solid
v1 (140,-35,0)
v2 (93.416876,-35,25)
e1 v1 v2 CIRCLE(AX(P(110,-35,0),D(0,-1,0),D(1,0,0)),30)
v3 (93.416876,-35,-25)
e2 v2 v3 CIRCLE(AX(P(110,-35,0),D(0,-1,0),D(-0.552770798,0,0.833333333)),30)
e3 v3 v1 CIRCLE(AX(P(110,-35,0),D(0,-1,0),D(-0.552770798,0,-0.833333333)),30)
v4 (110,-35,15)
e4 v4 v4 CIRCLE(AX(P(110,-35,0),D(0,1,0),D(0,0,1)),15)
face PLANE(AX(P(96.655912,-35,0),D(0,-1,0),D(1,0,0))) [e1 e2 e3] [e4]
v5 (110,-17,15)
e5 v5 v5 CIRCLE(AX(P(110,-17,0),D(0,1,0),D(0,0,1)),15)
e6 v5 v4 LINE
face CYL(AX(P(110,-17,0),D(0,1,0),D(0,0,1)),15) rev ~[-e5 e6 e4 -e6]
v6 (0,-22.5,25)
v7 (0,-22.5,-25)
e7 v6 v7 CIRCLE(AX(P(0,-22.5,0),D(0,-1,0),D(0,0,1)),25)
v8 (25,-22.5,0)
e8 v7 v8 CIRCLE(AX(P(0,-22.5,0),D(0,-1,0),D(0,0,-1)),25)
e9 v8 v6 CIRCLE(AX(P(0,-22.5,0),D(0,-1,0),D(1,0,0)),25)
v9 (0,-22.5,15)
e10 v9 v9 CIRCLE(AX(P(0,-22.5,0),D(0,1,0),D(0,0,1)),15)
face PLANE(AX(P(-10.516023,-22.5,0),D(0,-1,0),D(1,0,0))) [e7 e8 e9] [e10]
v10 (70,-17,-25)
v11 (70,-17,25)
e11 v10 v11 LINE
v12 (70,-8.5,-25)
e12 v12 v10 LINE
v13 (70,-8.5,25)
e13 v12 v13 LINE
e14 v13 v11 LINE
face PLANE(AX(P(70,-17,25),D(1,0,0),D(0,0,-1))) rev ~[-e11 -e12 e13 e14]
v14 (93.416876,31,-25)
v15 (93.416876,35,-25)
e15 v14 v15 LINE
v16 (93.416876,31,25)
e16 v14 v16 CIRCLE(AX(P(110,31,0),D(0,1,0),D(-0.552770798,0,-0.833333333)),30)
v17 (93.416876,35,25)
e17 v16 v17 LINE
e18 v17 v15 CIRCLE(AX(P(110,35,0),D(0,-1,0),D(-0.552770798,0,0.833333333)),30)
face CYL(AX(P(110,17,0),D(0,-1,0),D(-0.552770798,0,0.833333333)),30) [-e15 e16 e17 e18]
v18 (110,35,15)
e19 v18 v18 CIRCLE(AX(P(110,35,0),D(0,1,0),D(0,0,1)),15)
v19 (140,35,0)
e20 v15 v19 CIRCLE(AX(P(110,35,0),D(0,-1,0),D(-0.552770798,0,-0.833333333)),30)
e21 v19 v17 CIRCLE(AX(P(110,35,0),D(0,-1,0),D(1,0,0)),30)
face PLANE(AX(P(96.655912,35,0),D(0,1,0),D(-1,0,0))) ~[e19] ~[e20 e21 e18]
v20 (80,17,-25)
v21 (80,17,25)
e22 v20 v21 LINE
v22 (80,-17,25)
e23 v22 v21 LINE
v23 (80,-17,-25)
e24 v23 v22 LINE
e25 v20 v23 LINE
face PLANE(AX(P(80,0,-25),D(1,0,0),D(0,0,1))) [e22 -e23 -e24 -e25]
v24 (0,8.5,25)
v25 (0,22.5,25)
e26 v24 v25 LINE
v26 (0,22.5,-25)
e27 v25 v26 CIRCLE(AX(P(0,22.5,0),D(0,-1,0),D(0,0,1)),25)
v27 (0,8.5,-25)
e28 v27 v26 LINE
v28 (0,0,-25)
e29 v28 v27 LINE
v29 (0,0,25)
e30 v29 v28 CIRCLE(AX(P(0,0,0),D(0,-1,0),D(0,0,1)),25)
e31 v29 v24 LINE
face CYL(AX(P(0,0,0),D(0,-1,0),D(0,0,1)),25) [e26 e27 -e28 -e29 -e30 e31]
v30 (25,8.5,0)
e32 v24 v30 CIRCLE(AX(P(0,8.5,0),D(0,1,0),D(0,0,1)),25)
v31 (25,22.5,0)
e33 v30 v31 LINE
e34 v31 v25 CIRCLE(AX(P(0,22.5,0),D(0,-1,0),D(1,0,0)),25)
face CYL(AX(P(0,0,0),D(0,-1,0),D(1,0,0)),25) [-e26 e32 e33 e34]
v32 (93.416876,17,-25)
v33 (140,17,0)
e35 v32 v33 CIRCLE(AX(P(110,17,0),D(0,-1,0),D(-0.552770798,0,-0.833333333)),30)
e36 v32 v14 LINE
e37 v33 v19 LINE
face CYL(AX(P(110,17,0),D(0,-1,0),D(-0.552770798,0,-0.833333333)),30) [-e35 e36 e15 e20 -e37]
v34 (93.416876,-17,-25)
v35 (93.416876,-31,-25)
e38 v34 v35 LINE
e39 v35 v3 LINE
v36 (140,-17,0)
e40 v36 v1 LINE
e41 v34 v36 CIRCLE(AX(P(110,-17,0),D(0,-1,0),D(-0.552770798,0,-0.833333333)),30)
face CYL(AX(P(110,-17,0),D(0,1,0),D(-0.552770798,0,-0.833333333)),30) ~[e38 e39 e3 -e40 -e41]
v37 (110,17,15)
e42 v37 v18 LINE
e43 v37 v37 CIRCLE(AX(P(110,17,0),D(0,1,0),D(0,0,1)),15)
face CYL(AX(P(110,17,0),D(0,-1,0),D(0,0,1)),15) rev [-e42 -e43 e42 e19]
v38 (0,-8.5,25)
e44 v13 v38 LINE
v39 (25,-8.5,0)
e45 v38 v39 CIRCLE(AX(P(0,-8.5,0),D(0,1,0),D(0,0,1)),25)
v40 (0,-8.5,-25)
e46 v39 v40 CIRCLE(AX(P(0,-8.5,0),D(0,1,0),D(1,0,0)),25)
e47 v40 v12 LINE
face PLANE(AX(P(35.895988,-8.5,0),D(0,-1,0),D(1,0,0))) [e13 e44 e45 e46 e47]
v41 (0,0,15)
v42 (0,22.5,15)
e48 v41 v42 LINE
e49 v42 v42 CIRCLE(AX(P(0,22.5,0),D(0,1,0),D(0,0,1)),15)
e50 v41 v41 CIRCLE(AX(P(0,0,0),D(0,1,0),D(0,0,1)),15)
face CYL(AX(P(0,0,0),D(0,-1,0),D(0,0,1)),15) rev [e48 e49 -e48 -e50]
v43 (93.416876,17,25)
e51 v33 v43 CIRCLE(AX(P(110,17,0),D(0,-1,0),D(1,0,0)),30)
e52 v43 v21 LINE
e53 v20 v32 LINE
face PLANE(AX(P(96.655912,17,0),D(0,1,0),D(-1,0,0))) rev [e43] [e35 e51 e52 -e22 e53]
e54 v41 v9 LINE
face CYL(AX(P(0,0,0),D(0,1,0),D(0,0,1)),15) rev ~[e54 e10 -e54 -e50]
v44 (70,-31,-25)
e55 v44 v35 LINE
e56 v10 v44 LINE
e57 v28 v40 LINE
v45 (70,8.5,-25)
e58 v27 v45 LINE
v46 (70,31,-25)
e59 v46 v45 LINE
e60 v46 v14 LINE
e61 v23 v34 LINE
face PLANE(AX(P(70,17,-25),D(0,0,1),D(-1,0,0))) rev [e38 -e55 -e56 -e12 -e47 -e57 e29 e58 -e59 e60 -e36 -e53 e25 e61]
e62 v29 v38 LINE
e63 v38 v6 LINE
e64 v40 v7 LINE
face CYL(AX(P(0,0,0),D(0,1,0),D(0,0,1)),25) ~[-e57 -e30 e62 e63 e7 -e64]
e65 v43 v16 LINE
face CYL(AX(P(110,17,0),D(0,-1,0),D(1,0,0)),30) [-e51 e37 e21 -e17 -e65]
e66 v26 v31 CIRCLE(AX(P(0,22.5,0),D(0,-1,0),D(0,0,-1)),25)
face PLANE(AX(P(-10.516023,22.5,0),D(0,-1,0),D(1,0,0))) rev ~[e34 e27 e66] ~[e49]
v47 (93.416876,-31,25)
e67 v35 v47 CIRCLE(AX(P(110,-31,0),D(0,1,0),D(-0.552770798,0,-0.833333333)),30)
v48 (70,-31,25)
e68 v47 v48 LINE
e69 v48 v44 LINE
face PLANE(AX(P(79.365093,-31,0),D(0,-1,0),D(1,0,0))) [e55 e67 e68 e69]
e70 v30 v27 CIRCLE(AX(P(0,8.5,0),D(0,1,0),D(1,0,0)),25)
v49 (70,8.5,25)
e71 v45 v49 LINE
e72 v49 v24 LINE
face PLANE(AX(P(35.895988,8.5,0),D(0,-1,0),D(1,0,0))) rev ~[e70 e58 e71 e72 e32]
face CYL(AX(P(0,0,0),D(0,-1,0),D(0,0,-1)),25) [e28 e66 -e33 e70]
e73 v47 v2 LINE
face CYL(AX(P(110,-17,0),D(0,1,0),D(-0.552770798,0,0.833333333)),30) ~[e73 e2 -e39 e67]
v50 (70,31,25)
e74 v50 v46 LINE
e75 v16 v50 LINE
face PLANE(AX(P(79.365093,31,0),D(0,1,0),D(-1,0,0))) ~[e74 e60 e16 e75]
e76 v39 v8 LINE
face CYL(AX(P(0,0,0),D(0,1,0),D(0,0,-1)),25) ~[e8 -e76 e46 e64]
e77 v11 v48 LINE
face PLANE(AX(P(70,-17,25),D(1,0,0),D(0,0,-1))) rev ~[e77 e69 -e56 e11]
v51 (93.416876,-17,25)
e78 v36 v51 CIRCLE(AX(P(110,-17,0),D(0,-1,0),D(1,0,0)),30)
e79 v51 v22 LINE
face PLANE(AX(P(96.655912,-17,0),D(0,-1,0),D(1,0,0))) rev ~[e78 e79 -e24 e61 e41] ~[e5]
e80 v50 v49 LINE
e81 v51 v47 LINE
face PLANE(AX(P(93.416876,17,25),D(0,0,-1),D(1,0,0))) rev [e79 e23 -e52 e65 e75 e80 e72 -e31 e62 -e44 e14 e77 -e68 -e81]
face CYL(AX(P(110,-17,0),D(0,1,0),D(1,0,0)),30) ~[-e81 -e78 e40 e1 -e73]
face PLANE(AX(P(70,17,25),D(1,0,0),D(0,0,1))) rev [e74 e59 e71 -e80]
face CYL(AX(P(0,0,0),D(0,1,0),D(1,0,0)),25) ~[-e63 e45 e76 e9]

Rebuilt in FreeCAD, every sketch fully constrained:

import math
import FreeCAD as App
import Part
import Sketcher


def add_polygon(sketch, points):
    """Adds a closed chain of lines whose ends are joined by coincident constraints."""
    first, n = sketch.GeometryCount, len(points)
    for a, b in zip(points, points[1:] + points[:1]):
        sketch.addGeometry(Part.LineSegment(App.Vector(*a, 0), App.Vector(*b, 0)), False)
    for i in range(n):
        sketch.addConstraint(Sketcher.Constraint("Coincident", first + i, 2, first + (i + 1) % n, 1))

doc = App.newDocument("Part")
params = doc.addObject("Spreadsheet::Sheet", "Params")
for row, (alias, value) in enumerate([
    ("sketch1_diameter", "30 mm"),
    ("sketch1_radius", "25 mm"),
    ("pad1_length", "45 mm"),
    ("sketch2_radius", "25 mm"),
    ("sketch2_width", "70 mm"),
    ("pad2_length", "17 mm"),
    ("sketch3_width", "10 mm"),
    ("sketch3_height", "50 mm"),
    ("pad3_length", "34 mm"),
    ("sketch4_radius", "30 mm"),
    ("sketch4_height", "50 mm"),
    ("pad4_length", "14 mm"),
    ("sketch5_diameter", "30 mm"),
    ("sketch5_radius", "30 mm"),
    ("pad5_length", "18 mm"),
], start=1):
    params.set(f"A{row}", alias)
    params.set(f"B{row}", "=" + value)
    params.setAlias(f"B{row}", alias)

body = doc.addObject("PartDesign::Body", "Body")

# Sketch on XZ plane
sketch1 = doc.addObject("Sketcher::SketchObject", "Sketch")
body.addObject(sketch1)
sketch1.AttachmentSupport = (doc.XZ_Plane, [""])
sketch1.MapMode = "FlatFace"
sketch1.addGeometry(Part.ArcOfCircle(Part.Circle(App.Vector(0, 0, 0), App.Vector(0, 0, 1), 25), math.radians(90), math.radians(270)), False)
sketch1.addGeometry(Part.ArcOfCircle(Part.Circle(App.Vector(0, 0, 0), App.Vector(0, 0, 1), 25), math.radians(-90), math.radians(0)), False)
sketch1.addGeometry(Part.ArcOfCircle(Part.Circle(App.Vector(0, 0, 0), App.Vector(0, 0, 1), 25), math.radians(0), math.radians(90)), False)
sketch1.addGeometry(Part.Circle(App.Vector(0, 0, 0), App.Vector(0, 0, 1), 15), False)
sketch1.addConstraint(Sketcher.Constraint("Tangent", 0, 2, 1, 1))
sketch1.addConstraint(Sketcher.Constraint("Tangent", 1, 2, 2, 1))
sketch1.addConstraint(Sketcher.Constraint("Tangent", 2, 2, 0, 1))
sketch1.addConstraint(Sketcher.Constraint("Coincident", 0, 3, -1, 1))
sketch1.addConstraint(Sketcher.Constraint("Coincident", 3, 3, -1, 1))
sketch1.addConstraint(Sketcher.Constraint("PointOnObject", 0, 2, -2))
sketch1.addConstraint(Sketcher.Constraint("PointOnObject", 1, 2, -1))
sketch1.addConstraint(Sketcher.Constraint("PointOnObject", 2, 2, -2))
sketch1.addConstraint(Sketcher.Constraint("Diameter", 3, 30.0))
sketch1.addConstraint(Sketcher.Constraint("Radius", 0, 25.0))
sketch1.setExpression("Constraints[8]", "Params.sketch1_diameter")
sketch1.setExpression("Constraints[9]", "Params.sketch1_radius")
pad1 = doc.addObject("PartDesign::Pad", "Pad")
body.addObject(pad1)
pad1.Profile = sketch1
pad1.setExpression("Length", "Params.pad1_length")
pad1.Midplane = True

# Sketch on XZ plane
sketch2 = doc.addObject("Sketcher::SketchObject", "Sketch001")
body.addObject(sketch2)
sketch2.AttachmentSupport = (doc.XZ_Plane, [""])
sketch2.MapMode = "FlatFace"
sketch2.addGeometry(Part.ArcOfCircle(Part.Circle(App.Vector(0, 0, 0), App.Vector(0, 0, 1), 25), math.radians(0), math.radians(90)), False)
sketch2.addGeometry(Part.ArcOfCircle(Part.Circle(App.Vector(0, 0, 0), App.Vector(0, 0, 1), 25), math.radians(-90), math.radians(0)), False)
sketch2.addGeometry(Part.LineSegment(App.Vector(0, -25, 0), App.Vector(70, -25, 0)), False)
sketch2.addGeometry(Part.LineSegment(App.Vector(70, -25, 0), App.Vector(70, 25, 0)), False)
sketch2.addGeometry(Part.LineSegment(App.Vector(70, 25, 0), App.Vector(0, 25, 0)), False)
sketch2.addConstraint(Sketcher.Constraint("Tangent", 0, 1, 1, 2))
sketch2.addConstraint(Sketcher.Constraint("Tangent", 1, 1, 2, 1))
sketch2.addConstraint(Sketcher.Constraint("Coincident", 2, 2, 3, 1))
sketch2.addConstraint(Sketcher.Constraint("Coincident", 3, 2, 4, 1))
sketch2.addConstraint(Sketcher.Constraint("Tangent", 4, 2, 0, 2))
sketch2.addConstraint(Sketcher.Constraint("Horizontal", 2))
sketch2.addConstraint(Sketcher.Constraint("Vertical", 3))
sketch2.addConstraint(Sketcher.Constraint("Horizontal", 4))
sketch2.addConstraint(Sketcher.Constraint("Coincident", 0, 3, -1, 1))
sketch2.addConstraint(Sketcher.Constraint("Equal", 0, 1))
sketch2.addConstraint(Sketcher.Constraint("PointOnObject", 0, 1, -1))
sketch2.addConstraint(Sketcher.Constraint("Radius", 0, 25.0))
sketch2.addConstraint(Sketcher.Constraint("DistanceX", 2, 1, 2, 2, 70.0))
sketch2.setExpression("Constraints[11]", "Params.sketch2_radius")
sketch2.setExpression("Constraints[12]", "Params.sketch2_width")
pad2 = doc.addObject("PartDesign::Pad", "Pad001")
body.addObject(pad2)
pad2.Profile = sketch2
pad2.setExpression("Length", "Params.pad2_length")
pad2.Midplane = True

# Sketch on XZ plane
sketch3 = doc.addObject("Sketcher::SketchObject", "Sketch002")
body.addObject(sketch3)
sketch3.AttachmentSupport = (doc.XZ_Plane, [""])
sketch3.MapMode = "FlatFace"
add_polygon(sketch3, [(70, 25), (70, -25), (80, -25), (80, 25)])  # lines 0-3
sketch3.addConstraint(Sketcher.Constraint("Vertical", 0))
sketch3.addConstraint(Sketcher.Constraint("Horizontal", 1))
sketch3.addConstraint(Sketcher.Constraint("Vertical", 2))
sketch3.addConstraint(Sketcher.Constraint("Horizontal", 3))
sketch3.addConstraint(Sketcher.Constraint("DistanceX", 1, 1, 1, 2, 10.0))
sketch3.addConstraint(Sketcher.Constraint("DistanceY", 0, 2, 0, 1, 50.0))
sketch3.addConstraint(Sketcher.Constraint("DistanceX", -1, 1, 0, 2, 70.0))
sketch3.addConstraint(Sketcher.Constraint("DistanceY", 0, 2, -1, 1, 25.0))
sketch3.setExpression("Constraints[8]", "Params.sketch3_width")
sketch3.setExpression("Constraints[9]", "Params.sketch3_height")
pad3 = doc.addObject("PartDesign::Pad", "Pad002")
body.addObject(pad3)
pad3.Profile = sketch3
pad3.setExpression("Length", "Params.pad3_length")
pad3.Midplane = True

# Sketch on XZ plane
sketch4 = doc.addObject("Sketcher::SketchObject", "Sketch003")
body.addObject(sketch4)
sketch4.AttachmentSupport = (doc.XZ_Plane, [""])
sketch4.MapMode = "FlatFace"
sketch4.AttachmentOffset = App.Placement(App.Vector(0, 0, 17), App.Rotation())
sketch4.addGeometry(Part.LineSegment(App.Vector(93.416876, 25, 0), App.Vector(70, 25, 0)), False)
sketch4.addGeometry(Part.LineSegment(App.Vector(70, 25, 0), App.Vector(70, -25, 0)), False)
sketch4.addGeometry(Part.LineSegment(App.Vector(70, -25, 0), App.Vector(93.416876, -25, 0)), False)
sketch4.addGeometry(Part.ArcOfCircle(Part.Circle(App.Vector(110, 0, 0), App.Vector(0, 0, 1), 30), math.radians(123.55731), math.radians(236.44269)), False)
sketch4.addConstraint(Sketcher.Constraint("Coincident", 0, 2, 1, 1))
sketch4.addConstraint(Sketcher.Constraint("Coincident", 1, 2, 2, 1))
sketch4.addConstraint(Sketcher.Constraint("Coincident", 2, 2, 3, 2))
sketch4.addConstraint(Sketcher.Constraint("Coincident", 3, 1, 0, 1))
sketch4.addConstraint(Sketcher.Constraint("Horizontal", 0))
sketch4.addConstraint(Sketcher.Constraint("Vertical", 1))
sketch4.addConstraint(Sketcher.Constraint("Horizontal", 2))
sketch4.addConstraint(Sketcher.Constraint("Symmetric", 2, 2, 3, 1, -1))
sketch4.addConstraint(Sketcher.Constraint("Radius", 3, 30.0))
sketch4.addConstraint(Sketcher.Constraint("DistanceY", 1, 2, 1, 1, 50.0))
sketch4.addConstraint(Sketcher.Constraint("DistanceX", -1, 1, 3, 3, 110.0))
sketch4.addConstraint(Sketcher.Constraint("DistanceX", -1, 1, 0, 2, 70.0))
sketch4.setExpression("Constraints[8]", "Params.sketch4_radius")
sketch4.setExpression("Constraints[9]", "Params.sketch4_height")
pad4 = doc.addObject("PartDesign::Pad", "Pad003")
body.addObject(pad4)
pad4.Profile = sketch4
pad4.setExpression("Length", "Params.pad4_length")

# Sketch on XZ plane
sketch5 = doc.addObject("Sketcher::SketchObject", "Sketch004")
body.addObject(sketch5)
sketch5.AttachmentSupport = (doc.XZ_Plane, [""])
sketch5.MapMode = "FlatFace"
sketch5.AttachmentOffset = App.Placement(App.Vector(0, 0, 17), App.Rotation())
sketch5.addGeometry(Part.ArcOfCircle(Part.Circle(App.Vector(110, 0, 0), App.Vector(0, 0, 1), 30), math.radians(123.55731), math.radians(236.44269)), False)
sketch5.addGeometry(Part.ArcOfCircle(Part.Circle(App.Vector(110, 0, 0), App.Vector(0, 0, 1), 30), math.radians(-123.55731), math.radians(0)), False)
sketch5.addGeometry(Part.ArcOfCircle(Part.Circle(App.Vector(110, 0, 0), App.Vector(0, 0, 1), 30), math.radians(0), math.radians(123.55731)), False)
sketch5.addGeometry(Part.Circle(App.Vector(110, 0, 0), App.Vector(0, 0, 1), 15), False)
sketch5.addConstraint(Sketcher.Constraint("Tangent", 0, 2, 1, 1))
sketch5.addConstraint(Sketcher.Constraint("Tangent", 1, 2, 2, 1))
sketch5.addConstraint(Sketcher.Constraint("Tangent", 2, 2, 0, 1))
sketch5.addConstraint(Sketcher.Constraint("Coincident", 3, 3, 0, 3))
sketch5.addConstraint(Sketcher.Constraint("Symmetric", 0, 2, 2, 2, -1))
sketch5.addConstraint(Sketcher.Constraint("PointOnObject", 1, 2, -1))
sketch5.addConstraint(Sketcher.Constraint("Diameter", 3, 30.0))
sketch5.addConstraint(Sketcher.Constraint("Radius", 0, 30.0))
sketch5.addConstraint(Sketcher.Constraint("DistanceX", -1, 1, 0, 3, 110.0))
sketch5.addConstraint(Sketcher.Constraint("DistanceY", 0, 2, -1, 1, 25.0))
sketch5.setExpression("Constraints[6]", "Params.sketch5_diameter")
sketch5.setExpression("Constraints[7]", "Params.sketch5_radius")
pad5 = doc.addObject("PartDesign::Pad", "Pad004")
body.addObject(pad5)
pad5.Profile = sketch5
pad5.setExpression("Length", "Params.pad5_length")
body2 = doc.addObject("PartDesign::Body", "Body001")
doc.recompute()

body2.BaseFeature = body
doc.recompute()

mirroring = doc.addObject("Part::Mirroring", "Mirroring")
mirroring.Source = body
mirroring.Base = App.Vector(0, 0, 0)
mirroring.Normal = App.Vector(0, -1, 0)
body3 = doc.addObject("PartDesign::Body", "Body002")
body3.BaseFeature = mirroring
boolean = doc.addObject("PartDesign::Boolean", "Boolean")
body2.addObject(boolean)
boolean.Type = "Fuse"
boolean.addObjects([body3])
doc.recompute()
mirroring.Visibility = False

doc.recompute()
